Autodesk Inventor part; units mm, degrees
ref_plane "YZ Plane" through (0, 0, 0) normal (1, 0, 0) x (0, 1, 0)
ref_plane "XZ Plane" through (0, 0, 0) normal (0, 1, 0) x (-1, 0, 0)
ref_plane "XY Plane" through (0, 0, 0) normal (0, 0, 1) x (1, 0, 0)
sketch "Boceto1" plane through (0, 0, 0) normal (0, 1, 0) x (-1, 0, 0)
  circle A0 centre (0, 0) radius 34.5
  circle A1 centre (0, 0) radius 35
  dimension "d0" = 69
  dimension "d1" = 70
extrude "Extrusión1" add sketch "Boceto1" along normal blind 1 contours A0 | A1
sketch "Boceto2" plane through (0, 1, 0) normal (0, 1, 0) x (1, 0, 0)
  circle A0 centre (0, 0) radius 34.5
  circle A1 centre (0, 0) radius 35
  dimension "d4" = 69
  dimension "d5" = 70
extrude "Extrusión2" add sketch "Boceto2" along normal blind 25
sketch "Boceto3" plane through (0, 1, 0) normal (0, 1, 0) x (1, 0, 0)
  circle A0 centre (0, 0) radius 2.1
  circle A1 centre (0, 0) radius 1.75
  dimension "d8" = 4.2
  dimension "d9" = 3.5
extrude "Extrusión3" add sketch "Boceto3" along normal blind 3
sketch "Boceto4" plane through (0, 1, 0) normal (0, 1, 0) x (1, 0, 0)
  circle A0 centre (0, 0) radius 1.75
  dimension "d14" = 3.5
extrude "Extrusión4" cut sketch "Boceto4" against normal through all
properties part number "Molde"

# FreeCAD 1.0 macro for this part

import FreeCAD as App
import Part
import Sketcher
from FreeCAD import Vector

doc = App.newDocument("Part")
params = doc.addObject("Spreadsheet::Sheet", "Params")
for row, (alias, value) in enumerate([
    ("sketch1_diameter", "70 mm"),
    ("pad1_length", "1 mm"),
    ("sketch2_diameter", "70 mm"),
    ("sketch2_diameter2", "69 mm"),
    ("pad2_length", "25 mm"),
    ("sketch3_diameter", "4.2 mm"),
    ("sketch3_diameter2", "3.5 mm"),
    ("pad3_length", "3 mm"),
    ("sketch4_diameter", "3.5 mm"),
], start=1):
    params.set(f"A{row}", alias)
    params.set(f"B{row}", "=" + value)
    params.setAlias(f"B{row}", alias)

body = doc.addObject("PartDesign::Body", "Body")

# Sketch on XZ plane
sketch1 = body.newObject("Sketcher::SketchObject", "Sketch")
sketch1.AttachmentSupport = (doc.getObject("XZ_Plane"), [""])
sketch1.MapMode = "FlatFace"
sketch1.addGeometry(Part.Circle(Vector(0, 0, 0), Vector(0, 0, 1), 35), False)
sketch1.addConstraint([
    Sketcher.Constraint("Coincident", 0, 3, -1, 1),
    Sketcher.Constraint("Diameter", 0, 70.0),
])
sketch1.setExpression("Constraints[1]", "Params.sketch1_diameter")
pad1 = body.newObject("PartDesign::Pad", "Pad")
pad1.Profile = sketch1
pad1.setExpression("Length", "Params.pad1_length")
pad1.Reversed = True

# Sketch on XZ plane
sketch2 = body.newObject("Sketcher::SketchObject", "Sketch001")
sketch2.AttachmentSupport = (doc.getObject("XZ_Plane"), [""])
sketch2.MapMode = "FlatFace"
sketch2.AttachmentOffset = App.Placement(Vector(0, 0, -1), App.Rotation())
sketch2.addGeometry([
    Part.Circle(Vector(0, 0, 0), Vector(0, 0, 1), 35),
    Part.Circle(Vector(0, 0, 0), Vector(0, 0, 1), 34.5),
], False)
sketch2.addConstraint([
    Sketcher.Constraint("Coincident", 0, 3, -1, 1),
    Sketcher.Constraint("Coincident", 1, 3, -1, 1),
    Sketcher.Constraint("Diameter", 0, 70.0),
    Sketcher.Constraint("Diameter", 1, 69.0),
])
sketch2.setExpression("Constraints[2]", "Params.sketch2_diameter")
sketch2.setExpression("Constraints[3]", "Params.sketch2_diameter2")
pad2 = body.newObject("PartDesign::Pad", "Pad001")
pad2.Profile = sketch2
pad2.setExpression("Length", "Params.pad2_length")
pad2.Reversed = True

# Sketch on XZ plane
sketch3 = body.newObject("Sketcher::SketchObject", "Sketch002")
sketch3.AttachmentSupport = (doc.getObject("XZ_Plane"), [""])
sketch3.MapMode = "FlatFace"
sketch3.AttachmentOffset = App.Placement(Vector(0, 0, -1), App.Rotation())
sketch3.addGeometry([
    Part.Circle(Vector(0, 0, 0), Vector(0, 0, 1), 2.1),
    Part.Circle(Vector(0, 0, 0), Vector(0, 0, 1), 1.75),
], False)
sketch3.addConstraint([
    Sketcher.Constraint("Coincident", 0, 3, -1, 1),
    Sketcher.Constraint("Coincident", 1, 3, -1, 1),
    Sketcher.Constraint("Diameter", 0, 4.2),
    Sketcher.Constraint("Diameter", 1, 3.5),
])
sketch3.setExpression("Constraints[2]", "Params.sketch3_diameter")
sketch3.setExpression("Constraints[3]", "Params.sketch3_diameter2")
pad3 = body.newObject("PartDesign::Pad", "Pad002")
pad3.Profile = sketch3
pad3.setExpression("Length", "Params.pad3_length")
pad3.Reversed = True

# Sketch on XZ plane
sketch4 = body.newObject("Sketcher::SketchObject", "Sketch003")
sketch4.AttachmentSupport = (doc.getObject("XZ_Plane"), [""])
sketch4.MapMode = "FlatFace"
sketch4.AttachmentOffset = App.Placement(Vector(0, 0, -1), App.Rotation())
sketch4.addGeometry(Part.Circle(Vector(0, 0, 0), Vector(0, 0, 1), 1.75), False)
sketch4.addConstraint([
    Sketcher.Constraint("Coincident", 0, 3, -1, 1),
    Sketcher.Constraint("Diameter", 0, 3.5),
])
sketch4.setExpression("Constraints[1]", "Params.sketch4_diameter")
pocket1 = body.newObject("PartDesign::Pocket", "Pocket")
pocket1.Profile = sketch4
pocket1.Type = "ThroughAll"
pocket1.Reversed = True

doc.recompute()
